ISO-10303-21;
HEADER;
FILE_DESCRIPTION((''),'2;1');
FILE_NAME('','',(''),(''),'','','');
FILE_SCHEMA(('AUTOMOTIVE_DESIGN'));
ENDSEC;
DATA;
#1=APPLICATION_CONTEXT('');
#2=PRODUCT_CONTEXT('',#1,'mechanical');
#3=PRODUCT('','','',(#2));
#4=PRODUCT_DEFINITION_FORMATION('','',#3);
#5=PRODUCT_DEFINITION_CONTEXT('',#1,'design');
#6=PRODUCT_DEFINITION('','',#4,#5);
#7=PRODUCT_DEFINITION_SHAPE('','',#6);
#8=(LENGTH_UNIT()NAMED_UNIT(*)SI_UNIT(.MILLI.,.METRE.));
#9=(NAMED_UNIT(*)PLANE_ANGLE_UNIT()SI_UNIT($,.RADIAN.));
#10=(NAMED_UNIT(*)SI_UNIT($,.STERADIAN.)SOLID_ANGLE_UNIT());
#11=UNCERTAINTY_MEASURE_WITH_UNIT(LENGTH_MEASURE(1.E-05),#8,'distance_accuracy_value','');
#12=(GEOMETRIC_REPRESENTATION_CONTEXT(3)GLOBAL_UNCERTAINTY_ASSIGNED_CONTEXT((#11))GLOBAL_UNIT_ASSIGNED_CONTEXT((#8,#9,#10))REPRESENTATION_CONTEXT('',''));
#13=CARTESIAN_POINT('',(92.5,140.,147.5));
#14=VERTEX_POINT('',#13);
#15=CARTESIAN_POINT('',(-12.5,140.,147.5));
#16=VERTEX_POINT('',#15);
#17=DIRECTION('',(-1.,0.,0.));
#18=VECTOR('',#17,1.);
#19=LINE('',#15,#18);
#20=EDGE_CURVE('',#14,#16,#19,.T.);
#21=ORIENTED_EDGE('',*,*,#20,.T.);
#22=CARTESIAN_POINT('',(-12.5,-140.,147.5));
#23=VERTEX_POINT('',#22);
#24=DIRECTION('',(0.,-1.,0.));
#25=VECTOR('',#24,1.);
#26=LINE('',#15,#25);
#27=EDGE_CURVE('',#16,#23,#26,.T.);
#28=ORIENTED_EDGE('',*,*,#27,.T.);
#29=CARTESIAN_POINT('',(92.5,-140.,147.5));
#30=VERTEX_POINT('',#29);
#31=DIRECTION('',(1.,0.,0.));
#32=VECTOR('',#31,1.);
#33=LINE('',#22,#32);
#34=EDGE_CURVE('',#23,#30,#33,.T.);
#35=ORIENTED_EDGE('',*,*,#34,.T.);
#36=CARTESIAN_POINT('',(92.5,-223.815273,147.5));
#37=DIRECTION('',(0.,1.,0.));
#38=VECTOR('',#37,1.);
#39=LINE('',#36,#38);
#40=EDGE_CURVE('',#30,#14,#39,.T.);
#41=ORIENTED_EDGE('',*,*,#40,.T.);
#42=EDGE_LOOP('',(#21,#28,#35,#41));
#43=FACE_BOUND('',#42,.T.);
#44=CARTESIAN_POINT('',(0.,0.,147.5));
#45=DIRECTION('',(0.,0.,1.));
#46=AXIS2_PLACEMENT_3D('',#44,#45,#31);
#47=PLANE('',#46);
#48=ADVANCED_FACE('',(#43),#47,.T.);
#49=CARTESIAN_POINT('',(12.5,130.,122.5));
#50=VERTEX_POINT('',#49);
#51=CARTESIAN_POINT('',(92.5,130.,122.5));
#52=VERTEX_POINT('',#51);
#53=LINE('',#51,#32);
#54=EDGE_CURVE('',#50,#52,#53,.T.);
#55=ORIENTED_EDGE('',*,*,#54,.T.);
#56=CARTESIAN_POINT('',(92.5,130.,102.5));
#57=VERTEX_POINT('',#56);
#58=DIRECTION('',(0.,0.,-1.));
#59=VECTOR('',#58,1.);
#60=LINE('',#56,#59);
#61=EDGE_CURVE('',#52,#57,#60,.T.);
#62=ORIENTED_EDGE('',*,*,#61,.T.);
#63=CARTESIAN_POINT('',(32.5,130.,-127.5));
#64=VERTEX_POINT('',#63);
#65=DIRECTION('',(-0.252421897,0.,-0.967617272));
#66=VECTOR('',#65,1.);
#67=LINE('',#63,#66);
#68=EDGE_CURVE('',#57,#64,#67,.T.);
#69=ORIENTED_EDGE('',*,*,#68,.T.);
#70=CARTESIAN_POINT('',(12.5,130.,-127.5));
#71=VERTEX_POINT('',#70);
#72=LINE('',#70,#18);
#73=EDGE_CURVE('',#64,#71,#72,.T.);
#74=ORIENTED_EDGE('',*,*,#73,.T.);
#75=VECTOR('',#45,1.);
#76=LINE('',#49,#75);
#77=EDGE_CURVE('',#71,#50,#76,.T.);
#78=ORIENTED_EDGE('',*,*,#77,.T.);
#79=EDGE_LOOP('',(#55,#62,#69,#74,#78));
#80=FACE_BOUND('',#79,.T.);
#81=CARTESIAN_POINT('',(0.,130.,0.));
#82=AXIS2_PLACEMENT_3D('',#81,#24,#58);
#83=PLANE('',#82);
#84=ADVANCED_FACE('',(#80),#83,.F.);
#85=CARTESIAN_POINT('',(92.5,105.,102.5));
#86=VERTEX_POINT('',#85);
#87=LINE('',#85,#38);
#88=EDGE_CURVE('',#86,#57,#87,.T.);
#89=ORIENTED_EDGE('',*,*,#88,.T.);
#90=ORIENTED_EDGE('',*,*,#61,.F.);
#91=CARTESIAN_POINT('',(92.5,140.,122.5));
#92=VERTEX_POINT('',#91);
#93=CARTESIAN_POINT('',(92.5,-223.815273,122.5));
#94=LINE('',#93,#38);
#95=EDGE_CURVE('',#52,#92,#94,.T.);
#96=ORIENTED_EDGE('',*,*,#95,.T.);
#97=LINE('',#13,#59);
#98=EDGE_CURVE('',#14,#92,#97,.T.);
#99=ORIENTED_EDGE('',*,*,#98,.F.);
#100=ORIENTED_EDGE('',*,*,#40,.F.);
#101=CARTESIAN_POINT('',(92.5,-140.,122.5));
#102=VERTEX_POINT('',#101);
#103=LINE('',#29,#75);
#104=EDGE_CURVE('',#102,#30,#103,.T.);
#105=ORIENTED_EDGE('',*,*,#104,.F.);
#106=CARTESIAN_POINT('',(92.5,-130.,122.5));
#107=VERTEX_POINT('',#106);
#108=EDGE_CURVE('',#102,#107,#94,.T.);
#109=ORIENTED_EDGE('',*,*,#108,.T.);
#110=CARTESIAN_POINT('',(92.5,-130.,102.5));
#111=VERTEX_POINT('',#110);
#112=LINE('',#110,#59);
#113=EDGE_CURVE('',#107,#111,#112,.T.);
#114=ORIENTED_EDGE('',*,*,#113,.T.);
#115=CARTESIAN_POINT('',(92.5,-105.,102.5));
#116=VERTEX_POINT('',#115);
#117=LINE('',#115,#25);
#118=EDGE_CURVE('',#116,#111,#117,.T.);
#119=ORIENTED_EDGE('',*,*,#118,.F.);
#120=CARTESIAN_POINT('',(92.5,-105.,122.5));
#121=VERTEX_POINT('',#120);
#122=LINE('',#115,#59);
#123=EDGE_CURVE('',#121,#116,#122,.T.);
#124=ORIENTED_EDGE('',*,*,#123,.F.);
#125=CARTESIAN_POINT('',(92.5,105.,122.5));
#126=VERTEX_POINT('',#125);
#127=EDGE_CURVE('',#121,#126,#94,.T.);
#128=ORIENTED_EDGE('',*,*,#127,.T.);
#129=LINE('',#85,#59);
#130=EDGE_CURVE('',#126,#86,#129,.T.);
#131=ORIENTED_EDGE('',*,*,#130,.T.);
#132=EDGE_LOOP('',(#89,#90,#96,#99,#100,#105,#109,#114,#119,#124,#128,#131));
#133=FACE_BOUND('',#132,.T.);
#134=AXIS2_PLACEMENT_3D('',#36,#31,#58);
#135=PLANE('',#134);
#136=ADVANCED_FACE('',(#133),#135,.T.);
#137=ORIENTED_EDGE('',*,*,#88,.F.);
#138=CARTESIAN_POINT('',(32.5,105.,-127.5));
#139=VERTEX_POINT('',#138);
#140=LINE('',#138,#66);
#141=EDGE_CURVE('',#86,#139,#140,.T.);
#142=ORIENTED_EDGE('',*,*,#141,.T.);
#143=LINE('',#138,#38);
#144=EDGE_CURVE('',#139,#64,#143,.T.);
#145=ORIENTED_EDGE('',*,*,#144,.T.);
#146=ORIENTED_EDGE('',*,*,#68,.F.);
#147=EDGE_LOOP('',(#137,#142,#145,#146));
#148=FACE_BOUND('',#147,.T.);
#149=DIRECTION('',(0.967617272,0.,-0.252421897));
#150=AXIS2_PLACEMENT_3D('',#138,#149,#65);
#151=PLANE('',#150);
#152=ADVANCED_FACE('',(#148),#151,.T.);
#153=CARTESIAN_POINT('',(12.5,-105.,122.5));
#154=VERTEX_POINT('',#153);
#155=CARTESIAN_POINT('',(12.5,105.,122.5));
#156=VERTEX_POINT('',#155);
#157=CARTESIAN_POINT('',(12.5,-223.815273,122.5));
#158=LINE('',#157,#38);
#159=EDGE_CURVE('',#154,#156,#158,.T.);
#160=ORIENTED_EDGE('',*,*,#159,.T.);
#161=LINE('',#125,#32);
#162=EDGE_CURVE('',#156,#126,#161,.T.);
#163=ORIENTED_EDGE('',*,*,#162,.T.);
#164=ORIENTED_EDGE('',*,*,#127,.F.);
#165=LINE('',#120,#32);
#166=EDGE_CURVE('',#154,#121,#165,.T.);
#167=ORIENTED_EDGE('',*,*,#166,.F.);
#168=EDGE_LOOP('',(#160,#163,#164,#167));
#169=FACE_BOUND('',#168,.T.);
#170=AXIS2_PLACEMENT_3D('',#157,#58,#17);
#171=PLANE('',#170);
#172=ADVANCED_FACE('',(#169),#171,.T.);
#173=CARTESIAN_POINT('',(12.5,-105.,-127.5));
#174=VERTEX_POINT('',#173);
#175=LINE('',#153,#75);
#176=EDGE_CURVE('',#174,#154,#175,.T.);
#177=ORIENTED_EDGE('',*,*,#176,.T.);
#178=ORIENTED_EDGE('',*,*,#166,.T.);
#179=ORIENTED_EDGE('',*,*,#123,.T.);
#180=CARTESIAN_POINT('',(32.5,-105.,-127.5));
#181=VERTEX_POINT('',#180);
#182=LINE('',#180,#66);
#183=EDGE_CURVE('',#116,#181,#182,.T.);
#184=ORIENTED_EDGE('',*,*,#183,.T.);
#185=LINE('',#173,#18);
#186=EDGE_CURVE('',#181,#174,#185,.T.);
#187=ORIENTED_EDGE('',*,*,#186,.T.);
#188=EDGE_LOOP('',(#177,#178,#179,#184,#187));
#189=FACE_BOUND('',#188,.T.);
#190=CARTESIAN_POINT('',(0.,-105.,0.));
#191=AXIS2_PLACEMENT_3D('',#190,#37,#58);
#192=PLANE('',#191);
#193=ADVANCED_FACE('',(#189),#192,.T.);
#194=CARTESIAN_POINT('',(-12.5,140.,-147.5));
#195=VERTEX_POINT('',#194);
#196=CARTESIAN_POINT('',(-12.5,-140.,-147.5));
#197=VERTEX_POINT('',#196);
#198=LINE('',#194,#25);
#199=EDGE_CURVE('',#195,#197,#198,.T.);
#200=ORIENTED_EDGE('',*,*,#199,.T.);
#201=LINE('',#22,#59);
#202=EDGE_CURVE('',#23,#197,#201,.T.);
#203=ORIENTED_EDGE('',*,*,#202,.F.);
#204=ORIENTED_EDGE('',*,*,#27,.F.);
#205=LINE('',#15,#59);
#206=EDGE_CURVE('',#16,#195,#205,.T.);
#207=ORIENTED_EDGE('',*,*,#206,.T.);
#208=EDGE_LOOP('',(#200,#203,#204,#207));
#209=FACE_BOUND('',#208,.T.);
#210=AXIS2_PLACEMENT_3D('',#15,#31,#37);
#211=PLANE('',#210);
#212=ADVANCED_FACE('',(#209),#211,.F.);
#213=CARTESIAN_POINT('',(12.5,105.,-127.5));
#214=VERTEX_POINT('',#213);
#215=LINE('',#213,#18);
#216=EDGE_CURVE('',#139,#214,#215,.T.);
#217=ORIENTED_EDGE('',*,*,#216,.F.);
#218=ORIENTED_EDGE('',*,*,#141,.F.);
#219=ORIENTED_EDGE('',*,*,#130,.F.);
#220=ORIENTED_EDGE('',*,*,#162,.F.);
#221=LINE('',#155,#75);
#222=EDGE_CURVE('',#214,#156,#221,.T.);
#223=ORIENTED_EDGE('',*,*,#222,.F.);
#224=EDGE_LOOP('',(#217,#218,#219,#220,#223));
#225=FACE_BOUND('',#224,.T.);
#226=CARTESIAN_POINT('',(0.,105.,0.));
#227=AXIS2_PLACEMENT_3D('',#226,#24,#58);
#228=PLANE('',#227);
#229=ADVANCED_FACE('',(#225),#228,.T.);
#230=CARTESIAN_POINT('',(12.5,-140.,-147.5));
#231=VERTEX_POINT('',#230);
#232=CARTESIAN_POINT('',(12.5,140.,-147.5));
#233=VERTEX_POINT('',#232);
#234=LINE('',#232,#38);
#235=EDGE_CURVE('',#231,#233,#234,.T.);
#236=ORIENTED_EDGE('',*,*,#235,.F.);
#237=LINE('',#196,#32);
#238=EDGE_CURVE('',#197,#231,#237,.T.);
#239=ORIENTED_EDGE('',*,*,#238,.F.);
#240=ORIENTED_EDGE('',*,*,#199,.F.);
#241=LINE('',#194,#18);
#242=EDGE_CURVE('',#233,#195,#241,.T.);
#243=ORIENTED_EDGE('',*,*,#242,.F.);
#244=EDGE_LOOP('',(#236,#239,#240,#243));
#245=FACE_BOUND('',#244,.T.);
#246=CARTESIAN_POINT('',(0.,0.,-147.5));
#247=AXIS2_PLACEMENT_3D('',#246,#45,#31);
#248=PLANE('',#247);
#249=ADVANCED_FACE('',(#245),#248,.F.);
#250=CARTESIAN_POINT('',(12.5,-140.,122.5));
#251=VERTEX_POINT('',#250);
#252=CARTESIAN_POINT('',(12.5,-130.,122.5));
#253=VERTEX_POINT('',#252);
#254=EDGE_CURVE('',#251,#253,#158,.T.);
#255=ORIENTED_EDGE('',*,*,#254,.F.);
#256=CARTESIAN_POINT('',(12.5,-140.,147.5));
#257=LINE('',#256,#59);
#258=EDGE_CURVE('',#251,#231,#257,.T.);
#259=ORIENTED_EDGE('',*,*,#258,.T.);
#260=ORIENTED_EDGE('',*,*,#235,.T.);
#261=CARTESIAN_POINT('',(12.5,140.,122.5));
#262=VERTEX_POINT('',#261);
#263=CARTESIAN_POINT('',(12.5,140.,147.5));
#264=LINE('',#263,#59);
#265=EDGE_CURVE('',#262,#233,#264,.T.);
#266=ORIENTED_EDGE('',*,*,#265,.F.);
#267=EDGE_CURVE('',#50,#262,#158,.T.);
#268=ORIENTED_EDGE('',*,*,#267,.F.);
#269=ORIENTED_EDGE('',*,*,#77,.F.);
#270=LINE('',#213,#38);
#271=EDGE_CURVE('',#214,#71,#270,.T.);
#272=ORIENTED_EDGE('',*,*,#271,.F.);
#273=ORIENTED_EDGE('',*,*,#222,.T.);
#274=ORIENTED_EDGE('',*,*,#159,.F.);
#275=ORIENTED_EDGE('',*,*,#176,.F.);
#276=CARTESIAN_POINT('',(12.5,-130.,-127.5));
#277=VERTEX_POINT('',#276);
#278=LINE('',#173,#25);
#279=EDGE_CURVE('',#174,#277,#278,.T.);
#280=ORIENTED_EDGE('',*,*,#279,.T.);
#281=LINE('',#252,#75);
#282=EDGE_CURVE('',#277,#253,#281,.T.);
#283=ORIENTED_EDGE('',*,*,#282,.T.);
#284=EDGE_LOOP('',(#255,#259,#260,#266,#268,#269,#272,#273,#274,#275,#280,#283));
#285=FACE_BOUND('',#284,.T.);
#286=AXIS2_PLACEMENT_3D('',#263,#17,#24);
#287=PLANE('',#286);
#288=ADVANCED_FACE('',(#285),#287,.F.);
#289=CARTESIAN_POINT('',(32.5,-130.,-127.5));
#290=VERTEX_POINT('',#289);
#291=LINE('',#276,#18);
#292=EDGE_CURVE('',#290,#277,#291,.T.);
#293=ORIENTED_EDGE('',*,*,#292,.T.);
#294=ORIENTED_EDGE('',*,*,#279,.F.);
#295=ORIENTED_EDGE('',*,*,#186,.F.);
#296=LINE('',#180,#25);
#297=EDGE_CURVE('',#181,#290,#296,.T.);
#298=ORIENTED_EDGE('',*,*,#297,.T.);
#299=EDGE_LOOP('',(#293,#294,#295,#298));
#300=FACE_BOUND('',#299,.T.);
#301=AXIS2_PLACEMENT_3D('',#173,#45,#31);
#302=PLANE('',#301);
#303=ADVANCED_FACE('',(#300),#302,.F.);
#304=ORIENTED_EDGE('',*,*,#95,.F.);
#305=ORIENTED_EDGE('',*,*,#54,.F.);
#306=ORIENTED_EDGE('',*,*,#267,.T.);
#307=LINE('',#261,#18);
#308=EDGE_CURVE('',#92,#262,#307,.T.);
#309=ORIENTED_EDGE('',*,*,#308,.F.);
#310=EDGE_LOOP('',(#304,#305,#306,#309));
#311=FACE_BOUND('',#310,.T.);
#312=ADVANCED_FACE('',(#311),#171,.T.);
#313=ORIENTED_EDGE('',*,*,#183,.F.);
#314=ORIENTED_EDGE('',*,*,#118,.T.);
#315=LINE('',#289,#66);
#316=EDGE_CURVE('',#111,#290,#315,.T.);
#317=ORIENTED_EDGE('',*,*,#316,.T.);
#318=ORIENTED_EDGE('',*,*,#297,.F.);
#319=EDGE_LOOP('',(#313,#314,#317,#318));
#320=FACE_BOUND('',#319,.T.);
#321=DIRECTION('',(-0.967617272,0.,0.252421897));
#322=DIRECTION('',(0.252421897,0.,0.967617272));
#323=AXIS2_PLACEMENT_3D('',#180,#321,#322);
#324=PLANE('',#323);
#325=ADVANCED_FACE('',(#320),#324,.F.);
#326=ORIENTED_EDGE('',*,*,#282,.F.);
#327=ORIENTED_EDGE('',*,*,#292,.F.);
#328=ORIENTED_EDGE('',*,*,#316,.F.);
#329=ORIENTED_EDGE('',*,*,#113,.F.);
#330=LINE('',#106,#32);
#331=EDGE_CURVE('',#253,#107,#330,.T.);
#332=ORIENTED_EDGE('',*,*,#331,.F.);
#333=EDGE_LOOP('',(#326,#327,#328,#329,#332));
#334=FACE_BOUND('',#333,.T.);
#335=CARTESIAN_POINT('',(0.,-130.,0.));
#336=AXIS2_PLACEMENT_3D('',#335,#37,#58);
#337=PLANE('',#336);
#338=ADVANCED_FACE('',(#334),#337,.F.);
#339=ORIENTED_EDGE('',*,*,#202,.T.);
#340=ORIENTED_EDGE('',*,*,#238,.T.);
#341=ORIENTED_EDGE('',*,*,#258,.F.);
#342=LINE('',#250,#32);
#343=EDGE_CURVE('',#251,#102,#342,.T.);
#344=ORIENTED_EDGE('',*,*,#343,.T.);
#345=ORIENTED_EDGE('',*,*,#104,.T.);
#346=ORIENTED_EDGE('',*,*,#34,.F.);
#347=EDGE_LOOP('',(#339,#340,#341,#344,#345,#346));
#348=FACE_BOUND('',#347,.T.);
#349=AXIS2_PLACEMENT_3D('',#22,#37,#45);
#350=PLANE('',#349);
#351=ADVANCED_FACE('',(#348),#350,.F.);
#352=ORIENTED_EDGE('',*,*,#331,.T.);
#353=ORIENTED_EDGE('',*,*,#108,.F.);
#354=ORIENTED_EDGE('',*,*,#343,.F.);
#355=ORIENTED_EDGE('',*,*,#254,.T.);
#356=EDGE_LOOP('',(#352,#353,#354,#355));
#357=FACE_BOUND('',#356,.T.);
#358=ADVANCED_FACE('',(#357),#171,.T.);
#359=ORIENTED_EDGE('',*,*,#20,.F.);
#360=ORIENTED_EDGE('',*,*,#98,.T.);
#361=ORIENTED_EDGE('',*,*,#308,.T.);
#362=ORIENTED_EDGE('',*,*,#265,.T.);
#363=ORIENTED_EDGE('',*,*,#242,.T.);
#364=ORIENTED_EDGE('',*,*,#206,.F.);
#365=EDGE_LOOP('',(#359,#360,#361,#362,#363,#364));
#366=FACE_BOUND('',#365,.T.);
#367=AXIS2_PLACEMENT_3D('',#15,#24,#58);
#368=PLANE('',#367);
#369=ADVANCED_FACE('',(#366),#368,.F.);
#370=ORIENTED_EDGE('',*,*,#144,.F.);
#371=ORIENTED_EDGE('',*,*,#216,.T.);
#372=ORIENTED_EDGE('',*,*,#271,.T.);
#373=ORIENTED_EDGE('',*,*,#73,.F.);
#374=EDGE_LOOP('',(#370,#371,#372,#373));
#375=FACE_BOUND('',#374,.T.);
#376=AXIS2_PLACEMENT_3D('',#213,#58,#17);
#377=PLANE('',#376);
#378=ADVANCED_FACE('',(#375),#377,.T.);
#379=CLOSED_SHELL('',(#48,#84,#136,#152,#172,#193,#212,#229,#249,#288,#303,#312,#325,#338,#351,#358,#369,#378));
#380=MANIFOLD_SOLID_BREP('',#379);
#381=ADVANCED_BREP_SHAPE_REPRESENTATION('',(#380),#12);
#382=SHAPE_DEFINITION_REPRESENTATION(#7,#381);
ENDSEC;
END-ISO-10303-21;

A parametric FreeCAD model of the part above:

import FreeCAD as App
import Part
import Sketcher
from FreeCAD import Vector
Q = App.Units.Quantity


def add_polygon(sketch, points):
    """Adds a closed chain of lines whose ends are joined by coincident constraints."""
    first, n = sketch.GeometryCount, len(points)
    for a, b in zip(points, points[1:] + points[:1]):
        sketch.addGeometry(Part.LineSegment(App.Vector(*a, 0), App.Vector(*b, 0)), False)
    for i in range(n):
        sketch.addConstraint(Sketcher.Constraint("Coincident", first + i, 2, first + (i + 1) % n, 1))

doc = App.newDocument("Part")
body = doc.addObject("PartDesign::Body", "Body")

sketch1 = body.newObject("Sketcher::SketchObject", "Sketch")
sketch1.AttachmentSupport = (doc.getObject("XY_Plane"), [""])
sketch1.MapMode = "FlatFace"
add_polygon(sketch1, [(-12.5, 140), (-12.5, -140), (12.5, -140), (12.5, 140)])
sketch1.addConstraint([
    Sketcher.Constraint("Vertical", 0),
    Sketcher.Constraint("Horizontal", 1),
    Sketcher.Constraint("Vertical", 2),
    Sketcher.Constraint("Horizontal", 3),
    Sketcher.Constraint("Symmetric", 0, 2, 2, 2, -1, 1),
    Sketcher.Constraint("DistanceX", 1, 1, 1, 2, Q("25 mm")),
    Sketcher.Constraint("DistanceY", 0, 2, 0, 1, Q("280 mm")),
])
pad1 = body.newObject("PartDesign::Pad", "Pad")
pad1.Profile = sketch1
pad1.Length = 295
pad1.Midplane = True

sketch2 = body.newObject("Sketcher::SketchObject", "Sketch001")
sketch2.AttachmentSupport = (doc.getObject("XZ_Plane"), [""])
sketch2.MapMode = "FlatFace"
sketch2.AttachmentOffset = App.Placement(Vector(0, 0, -140), App.Rotation())
add_polygon(sketch2, [(12.5, 122.5), (12.5, 147.5), (92.5, 147.5), (92.5, 122.5)])
sketch2.addConstraint([
    Sketcher.Constraint("Vertical", 0),
    Sketcher.Constraint("Horizontal", 1),
    Sketcher.Constraint("Vertical", 2),
    Sketcher.Constraint("Horizontal", 3),
    Sketcher.Constraint("DistanceX", 1, 1, 1, 2, Q("80 mm")),
    Sketcher.Constraint("DistanceY", 0, 1, 0, 2, Q("25 mm")),
    Sketcher.Constraint("DistanceX", -1, 1, 0, 2, Q("12.5 mm")),
    Sketcher.Constraint("DistanceY", -1, 1, 0, 2, Q("147.5 mm")),
])
pad2 = body.newObject("PartDesign::Pad", "Pad001")
pad2.Profile = sketch2
pad2.Length = 280

sketch3 = body.newObject("Sketcher::SketchObject", "Sketch002")
sketch3.AttachmentSupport = (doc.getObject("XZ_Plane"), [""])
sketch3.MapMode = "FlatFace"
sketch3.AttachmentOffset = App.Placement(Vector(0, 0, -130), App.Rotation())
add_polygon(sketch3, [(32.5, -127.5), (12.5, -127.5), (12.5, 122.5), (92.5, 122.5), (92.5, 102.5)])
sketch3.addConstraint([
    Sketcher.Constraint("Horizontal", 0),
    Sketcher.Constraint("Vertical", 1),
    Sketcher.Constraint("Horizontal", 2),
    Sketcher.Constraint("Vertical", 3),
    Sketcher.Constraint("Equal", 0, 3),
    Sketcher.Constraint("DistanceX", 0, 2, 0, 1, Q("20 mm")),
    Sketcher.Constraint("DistanceX", 2, 1, 2, 2, Q("80 mm")),
    Sketcher.Constraint("DistanceY", 1, 1, 1, 2, Q("250 mm")),
    Sketcher.Constraint("DistanceX", -1, 1, 0, 2, Q("12.5 mm")),
    Sketcher.Constraint("DistanceY", 0, 2, -1, 1, Q("127.5 mm")),
])
pad3 = body.newObject("PartDesign::Pad", "Pad002")
pad3.Profile = sketch3
pad3.Length = 25
doc.recompute()

mirrored = body.newObject("PartDesign::Mirrored", "Mirrored")
mirrored.Originals = [pad3]
mirrored.MirrorPlane = (doc.getObject("XZ_Plane"), [""])
body.Tip = mirrored

doc.recompute()
